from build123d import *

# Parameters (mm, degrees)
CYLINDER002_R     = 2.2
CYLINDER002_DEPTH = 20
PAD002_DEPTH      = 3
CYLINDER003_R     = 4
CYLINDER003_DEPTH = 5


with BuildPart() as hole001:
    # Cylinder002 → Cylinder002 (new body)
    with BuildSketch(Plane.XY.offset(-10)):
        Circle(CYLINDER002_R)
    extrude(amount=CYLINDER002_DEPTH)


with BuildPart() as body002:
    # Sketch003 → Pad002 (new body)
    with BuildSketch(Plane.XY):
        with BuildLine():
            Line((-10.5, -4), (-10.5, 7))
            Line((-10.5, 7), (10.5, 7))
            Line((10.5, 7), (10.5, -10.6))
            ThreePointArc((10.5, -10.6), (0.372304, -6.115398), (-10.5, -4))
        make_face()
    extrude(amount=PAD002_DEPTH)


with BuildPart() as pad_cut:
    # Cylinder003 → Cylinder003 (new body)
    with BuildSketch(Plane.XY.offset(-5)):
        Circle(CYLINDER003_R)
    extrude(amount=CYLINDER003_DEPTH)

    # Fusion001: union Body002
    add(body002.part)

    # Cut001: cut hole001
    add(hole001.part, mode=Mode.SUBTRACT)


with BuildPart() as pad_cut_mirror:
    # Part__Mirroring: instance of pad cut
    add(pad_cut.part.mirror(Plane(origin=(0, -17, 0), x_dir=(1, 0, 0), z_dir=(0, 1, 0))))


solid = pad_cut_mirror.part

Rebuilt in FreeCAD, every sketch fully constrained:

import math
import FreeCAD as App
import Part
import Sketcher

V = App.Vector

doc = App.newDocument("Part")
body = doc.addObject("PartDesign::Body", "Body")

sketch1 = doc.addObject("Sketcher::SketchObject", "Sketch")
body.addObject(sketch1)
sketch1.AttachmentSupport = (doc.XY_Plane, [""])
sketch1.MapMode = "FlatFace"
sketch1.AttachmentOffset = App.Placement(V(0, 0, -10), App.Rotation())
sketch1.addGeometry(Part.Circle(V(0, 0, 0), V(0, 0, 1), 2.2), False)
sketch1.addConstraint(Sketcher.Constraint("Coincident", 0, 3, -1, 1))
sketch1.addConstraint(Sketcher.Constraint("Diameter", 0, 4.4))
pad1 = doc.addObject("PartDesign::Pad", "Pad")
body.addObject(pad1)
pad1.Profile = sketch1
pad1.Length = 20
body2 = doc.addObject("PartDesign::Body", "Body001")

sketch2 = doc.addObject("Sketcher::SketchObject", "Sketch001")
body2.addObject(sketch2)
sketch2.AttachmentSupport = (doc.getObject("XY_Plane001"), [""])
sketch2.MapMode = "FlatFace"
sketch2.addGeometry(Part.LineSegment(V(-10, 7, 0), V(-10, -4, 0)), False)
sketch2.addGeometry(Part.ArcOfCircle(Part.Circle(V(-14, -53, 0), V(0, 0, 1), 49), math.radians(60), math.radians(85)), False)
sketch2.addGeometry(Part.LineSegment(V(10, -11, 0), V(10, 7, 0)), False)
sketch2.addGeometry(Part.LineSegment(V(10, 7, 0), V(-10, 7, 0)), False)
sketch2.addConstraint(Sketcher.Constraint("Coincident", 0, 2, 1, 2))
sketch2.addConstraint(Sketcher.Constraint("Coincident", 1, 1, 2, 1))
sketch2.addConstraint(Sketcher.Constraint("Coincident", 2, 2, 3, 1))
sketch2.addConstraint(Sketcher.Constraint("Coincident", 3, 2, 0, 1))
sketch2.addConstraint(Sketcher.Constraint("Vertical", 0))
sketch2.addConstraint(Sketcher.Constraint("Vertical", 2))
sketch2.addConstraint(Sketcher.Constraint("Horizontal", 3))
sketch2.addConstraint(Sketcher.Constraint("DistanceX", 3, 2, 3, 1, 21.0))
sketch2.addConstraint(Sketcher.Constraint("DistanceY", 0, 2, 0, 1, 11.0))
sketch2.addConstraint(Sketcher.Constraint("DistanceY", 2, 1, 2, 2, 17.6))
sketch2.addConstraint(Sketcher.Constraint("DistanceY", 0, 2, -1, 1, 4.0))
sketch2.addConstraint(Sketcher.Constraint("DistanceX", 0, 2, -1, 1, 10.5))
sketch2.addConstraint(Sketcher.Constraint("Radius", 1, 49.399604))
pad2 = doc.addObject("PartDesign::Pad", "Pad001")
body2.addObject(pad2)
pad2.Profile = sketch2
pad2.Length = 3
body3 = doc.addObject("PartDesign::Body", "Body002")

sketch3 = doc.addObject("Sketcher::SketchObject", "Sketch002")
body3.addObject(sketch3)
sketch3.AttachmentSupport = (doc.getObject("XY_Plane002"), [""])
sketch3.MapMode = "FlatFace"
sketch3.AttachmentOffset = App.Placement(V(0, 0, -5), App.Rotation())
sketch3.addGeometry(Part.Circle(V(0, 0, 0), V(0, 0, 1), 4), False)
sketch3.addConstraint(Sketcher.Constraint("Coincident", 0, 3, -1, 1))
sketch3.addConstraint(Sketcher.Constraint("Diameter", 0, 8.0))
pad3 = doc.addObject("PartDesign::Pad", "Pad002")
body3.addObject(pad3)
pad3.Profile = sketch3
pad3.Length = 5
doc.recompute()

boolean = doc.addObject("PartDesign::Boolean", "Boolean")
body3.addObject(boolean)
boolean.Type = "Fuse"
boolean.addObjects([body2])
doc.recompute()

boolean2 = doc.addObject("PartDesign::Boolean", "Boolean001")
body3.addObject(boolean2)
boolean2.Type = "Cut"
boolean2.addObjects([body])
body4 = doc.addObject("PartDesign::Body", "Body003")
doc.recompute()

mirroring = doc.addObject("Part::Mirroring", "Mirroring")
mirroring.Source = body3
mirroring.Base = V(0, -17, 0)
mirroring.Normal = V(0, 1, 0)
body4.BaseFeature = mirroring
doc.recompute()
body3.Visibility = False
mirroring.Visibility = False

doc.recompute()
